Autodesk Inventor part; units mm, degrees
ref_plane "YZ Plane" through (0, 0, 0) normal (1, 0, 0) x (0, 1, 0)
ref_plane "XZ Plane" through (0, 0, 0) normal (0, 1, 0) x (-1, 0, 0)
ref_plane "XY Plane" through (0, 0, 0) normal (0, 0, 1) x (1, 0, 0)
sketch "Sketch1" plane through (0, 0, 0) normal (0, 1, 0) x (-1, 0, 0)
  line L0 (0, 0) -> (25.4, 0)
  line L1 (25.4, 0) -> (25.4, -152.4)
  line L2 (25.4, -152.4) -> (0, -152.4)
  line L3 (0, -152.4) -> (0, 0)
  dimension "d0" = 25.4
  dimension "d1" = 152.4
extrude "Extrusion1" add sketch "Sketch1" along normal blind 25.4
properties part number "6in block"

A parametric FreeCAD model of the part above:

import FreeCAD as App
import Part
import Sketcher

V = App.Vector
Q = App.Units.Quantity

doc = App.newDocument("Part")
body = doc.addObject("PartDesign::Body", "Body")

sketch1 = body.newObject("Sketcher::SketchObject", "Sketch")
sketch1.AttachmentSupport = (doc.getObject("XZ_Plane"), [""])
sketch1.MapMode = "FlatFace"
sketch1.addGeometry(Part.LineSegment(V(-25, 0, 0), V(0, 0, 0)), False)
sketch1.addGeometry(Part.LineSegment(V(0, 0, 0), V(0, -152, 0)), False)
sketch1.addGeometry(Part.LineSegment(V(0, -152, 0), V(-25, -152, 0)), False)
sketch1.addGeometry(Part.LineSegment(V(-25, -152, 0), V(-25, 0, 0)), False)
sketch1.addConstraint(Sketcher.Constraint("Coincident", 0, 2, 1, 1))
sketch1.addConstraint(Sketcher.Constraint("Coincident", 1, 2, 2, 1))
sketch1.addConstraint(Sketcher.Constraint("Coincident", 2, 2, 3, 1))
sketch1.addConstraint(Sketcher.Constraint("Coincident", 3, 2, 0, 1))
sketch1.addConstraint(Sketcher.Constraint("Horizontal", 0))
sketch1.addConstraint(Sketcher.Constraint("Vertical", 1))
sketch1.addConstraint(Sketcher.Constraint("Horizontal", 2))
sketch1.addConstraint(Sketcher.Constraint("Vertical", 3))
sketch1.addConstraint(Sketcher.Constraint("Coincident", 0, 2, -1, 1))
sketch1.addConstraint(Sketcher.Constraint("DistanceX", 0, 1, 0, 2, Q("1 in")))
sketch1.addConstraint(Sketcher.Constraint("DistanceY", 1, 2, 1, 1, Q("6 in")))
pad1 = body.newObject("PartDesign::Pad", "Pad")
pad1.Profile = sketch1
pad1.Length = Q("1 in")
pad1.Reversed = True

doc.recompute()
